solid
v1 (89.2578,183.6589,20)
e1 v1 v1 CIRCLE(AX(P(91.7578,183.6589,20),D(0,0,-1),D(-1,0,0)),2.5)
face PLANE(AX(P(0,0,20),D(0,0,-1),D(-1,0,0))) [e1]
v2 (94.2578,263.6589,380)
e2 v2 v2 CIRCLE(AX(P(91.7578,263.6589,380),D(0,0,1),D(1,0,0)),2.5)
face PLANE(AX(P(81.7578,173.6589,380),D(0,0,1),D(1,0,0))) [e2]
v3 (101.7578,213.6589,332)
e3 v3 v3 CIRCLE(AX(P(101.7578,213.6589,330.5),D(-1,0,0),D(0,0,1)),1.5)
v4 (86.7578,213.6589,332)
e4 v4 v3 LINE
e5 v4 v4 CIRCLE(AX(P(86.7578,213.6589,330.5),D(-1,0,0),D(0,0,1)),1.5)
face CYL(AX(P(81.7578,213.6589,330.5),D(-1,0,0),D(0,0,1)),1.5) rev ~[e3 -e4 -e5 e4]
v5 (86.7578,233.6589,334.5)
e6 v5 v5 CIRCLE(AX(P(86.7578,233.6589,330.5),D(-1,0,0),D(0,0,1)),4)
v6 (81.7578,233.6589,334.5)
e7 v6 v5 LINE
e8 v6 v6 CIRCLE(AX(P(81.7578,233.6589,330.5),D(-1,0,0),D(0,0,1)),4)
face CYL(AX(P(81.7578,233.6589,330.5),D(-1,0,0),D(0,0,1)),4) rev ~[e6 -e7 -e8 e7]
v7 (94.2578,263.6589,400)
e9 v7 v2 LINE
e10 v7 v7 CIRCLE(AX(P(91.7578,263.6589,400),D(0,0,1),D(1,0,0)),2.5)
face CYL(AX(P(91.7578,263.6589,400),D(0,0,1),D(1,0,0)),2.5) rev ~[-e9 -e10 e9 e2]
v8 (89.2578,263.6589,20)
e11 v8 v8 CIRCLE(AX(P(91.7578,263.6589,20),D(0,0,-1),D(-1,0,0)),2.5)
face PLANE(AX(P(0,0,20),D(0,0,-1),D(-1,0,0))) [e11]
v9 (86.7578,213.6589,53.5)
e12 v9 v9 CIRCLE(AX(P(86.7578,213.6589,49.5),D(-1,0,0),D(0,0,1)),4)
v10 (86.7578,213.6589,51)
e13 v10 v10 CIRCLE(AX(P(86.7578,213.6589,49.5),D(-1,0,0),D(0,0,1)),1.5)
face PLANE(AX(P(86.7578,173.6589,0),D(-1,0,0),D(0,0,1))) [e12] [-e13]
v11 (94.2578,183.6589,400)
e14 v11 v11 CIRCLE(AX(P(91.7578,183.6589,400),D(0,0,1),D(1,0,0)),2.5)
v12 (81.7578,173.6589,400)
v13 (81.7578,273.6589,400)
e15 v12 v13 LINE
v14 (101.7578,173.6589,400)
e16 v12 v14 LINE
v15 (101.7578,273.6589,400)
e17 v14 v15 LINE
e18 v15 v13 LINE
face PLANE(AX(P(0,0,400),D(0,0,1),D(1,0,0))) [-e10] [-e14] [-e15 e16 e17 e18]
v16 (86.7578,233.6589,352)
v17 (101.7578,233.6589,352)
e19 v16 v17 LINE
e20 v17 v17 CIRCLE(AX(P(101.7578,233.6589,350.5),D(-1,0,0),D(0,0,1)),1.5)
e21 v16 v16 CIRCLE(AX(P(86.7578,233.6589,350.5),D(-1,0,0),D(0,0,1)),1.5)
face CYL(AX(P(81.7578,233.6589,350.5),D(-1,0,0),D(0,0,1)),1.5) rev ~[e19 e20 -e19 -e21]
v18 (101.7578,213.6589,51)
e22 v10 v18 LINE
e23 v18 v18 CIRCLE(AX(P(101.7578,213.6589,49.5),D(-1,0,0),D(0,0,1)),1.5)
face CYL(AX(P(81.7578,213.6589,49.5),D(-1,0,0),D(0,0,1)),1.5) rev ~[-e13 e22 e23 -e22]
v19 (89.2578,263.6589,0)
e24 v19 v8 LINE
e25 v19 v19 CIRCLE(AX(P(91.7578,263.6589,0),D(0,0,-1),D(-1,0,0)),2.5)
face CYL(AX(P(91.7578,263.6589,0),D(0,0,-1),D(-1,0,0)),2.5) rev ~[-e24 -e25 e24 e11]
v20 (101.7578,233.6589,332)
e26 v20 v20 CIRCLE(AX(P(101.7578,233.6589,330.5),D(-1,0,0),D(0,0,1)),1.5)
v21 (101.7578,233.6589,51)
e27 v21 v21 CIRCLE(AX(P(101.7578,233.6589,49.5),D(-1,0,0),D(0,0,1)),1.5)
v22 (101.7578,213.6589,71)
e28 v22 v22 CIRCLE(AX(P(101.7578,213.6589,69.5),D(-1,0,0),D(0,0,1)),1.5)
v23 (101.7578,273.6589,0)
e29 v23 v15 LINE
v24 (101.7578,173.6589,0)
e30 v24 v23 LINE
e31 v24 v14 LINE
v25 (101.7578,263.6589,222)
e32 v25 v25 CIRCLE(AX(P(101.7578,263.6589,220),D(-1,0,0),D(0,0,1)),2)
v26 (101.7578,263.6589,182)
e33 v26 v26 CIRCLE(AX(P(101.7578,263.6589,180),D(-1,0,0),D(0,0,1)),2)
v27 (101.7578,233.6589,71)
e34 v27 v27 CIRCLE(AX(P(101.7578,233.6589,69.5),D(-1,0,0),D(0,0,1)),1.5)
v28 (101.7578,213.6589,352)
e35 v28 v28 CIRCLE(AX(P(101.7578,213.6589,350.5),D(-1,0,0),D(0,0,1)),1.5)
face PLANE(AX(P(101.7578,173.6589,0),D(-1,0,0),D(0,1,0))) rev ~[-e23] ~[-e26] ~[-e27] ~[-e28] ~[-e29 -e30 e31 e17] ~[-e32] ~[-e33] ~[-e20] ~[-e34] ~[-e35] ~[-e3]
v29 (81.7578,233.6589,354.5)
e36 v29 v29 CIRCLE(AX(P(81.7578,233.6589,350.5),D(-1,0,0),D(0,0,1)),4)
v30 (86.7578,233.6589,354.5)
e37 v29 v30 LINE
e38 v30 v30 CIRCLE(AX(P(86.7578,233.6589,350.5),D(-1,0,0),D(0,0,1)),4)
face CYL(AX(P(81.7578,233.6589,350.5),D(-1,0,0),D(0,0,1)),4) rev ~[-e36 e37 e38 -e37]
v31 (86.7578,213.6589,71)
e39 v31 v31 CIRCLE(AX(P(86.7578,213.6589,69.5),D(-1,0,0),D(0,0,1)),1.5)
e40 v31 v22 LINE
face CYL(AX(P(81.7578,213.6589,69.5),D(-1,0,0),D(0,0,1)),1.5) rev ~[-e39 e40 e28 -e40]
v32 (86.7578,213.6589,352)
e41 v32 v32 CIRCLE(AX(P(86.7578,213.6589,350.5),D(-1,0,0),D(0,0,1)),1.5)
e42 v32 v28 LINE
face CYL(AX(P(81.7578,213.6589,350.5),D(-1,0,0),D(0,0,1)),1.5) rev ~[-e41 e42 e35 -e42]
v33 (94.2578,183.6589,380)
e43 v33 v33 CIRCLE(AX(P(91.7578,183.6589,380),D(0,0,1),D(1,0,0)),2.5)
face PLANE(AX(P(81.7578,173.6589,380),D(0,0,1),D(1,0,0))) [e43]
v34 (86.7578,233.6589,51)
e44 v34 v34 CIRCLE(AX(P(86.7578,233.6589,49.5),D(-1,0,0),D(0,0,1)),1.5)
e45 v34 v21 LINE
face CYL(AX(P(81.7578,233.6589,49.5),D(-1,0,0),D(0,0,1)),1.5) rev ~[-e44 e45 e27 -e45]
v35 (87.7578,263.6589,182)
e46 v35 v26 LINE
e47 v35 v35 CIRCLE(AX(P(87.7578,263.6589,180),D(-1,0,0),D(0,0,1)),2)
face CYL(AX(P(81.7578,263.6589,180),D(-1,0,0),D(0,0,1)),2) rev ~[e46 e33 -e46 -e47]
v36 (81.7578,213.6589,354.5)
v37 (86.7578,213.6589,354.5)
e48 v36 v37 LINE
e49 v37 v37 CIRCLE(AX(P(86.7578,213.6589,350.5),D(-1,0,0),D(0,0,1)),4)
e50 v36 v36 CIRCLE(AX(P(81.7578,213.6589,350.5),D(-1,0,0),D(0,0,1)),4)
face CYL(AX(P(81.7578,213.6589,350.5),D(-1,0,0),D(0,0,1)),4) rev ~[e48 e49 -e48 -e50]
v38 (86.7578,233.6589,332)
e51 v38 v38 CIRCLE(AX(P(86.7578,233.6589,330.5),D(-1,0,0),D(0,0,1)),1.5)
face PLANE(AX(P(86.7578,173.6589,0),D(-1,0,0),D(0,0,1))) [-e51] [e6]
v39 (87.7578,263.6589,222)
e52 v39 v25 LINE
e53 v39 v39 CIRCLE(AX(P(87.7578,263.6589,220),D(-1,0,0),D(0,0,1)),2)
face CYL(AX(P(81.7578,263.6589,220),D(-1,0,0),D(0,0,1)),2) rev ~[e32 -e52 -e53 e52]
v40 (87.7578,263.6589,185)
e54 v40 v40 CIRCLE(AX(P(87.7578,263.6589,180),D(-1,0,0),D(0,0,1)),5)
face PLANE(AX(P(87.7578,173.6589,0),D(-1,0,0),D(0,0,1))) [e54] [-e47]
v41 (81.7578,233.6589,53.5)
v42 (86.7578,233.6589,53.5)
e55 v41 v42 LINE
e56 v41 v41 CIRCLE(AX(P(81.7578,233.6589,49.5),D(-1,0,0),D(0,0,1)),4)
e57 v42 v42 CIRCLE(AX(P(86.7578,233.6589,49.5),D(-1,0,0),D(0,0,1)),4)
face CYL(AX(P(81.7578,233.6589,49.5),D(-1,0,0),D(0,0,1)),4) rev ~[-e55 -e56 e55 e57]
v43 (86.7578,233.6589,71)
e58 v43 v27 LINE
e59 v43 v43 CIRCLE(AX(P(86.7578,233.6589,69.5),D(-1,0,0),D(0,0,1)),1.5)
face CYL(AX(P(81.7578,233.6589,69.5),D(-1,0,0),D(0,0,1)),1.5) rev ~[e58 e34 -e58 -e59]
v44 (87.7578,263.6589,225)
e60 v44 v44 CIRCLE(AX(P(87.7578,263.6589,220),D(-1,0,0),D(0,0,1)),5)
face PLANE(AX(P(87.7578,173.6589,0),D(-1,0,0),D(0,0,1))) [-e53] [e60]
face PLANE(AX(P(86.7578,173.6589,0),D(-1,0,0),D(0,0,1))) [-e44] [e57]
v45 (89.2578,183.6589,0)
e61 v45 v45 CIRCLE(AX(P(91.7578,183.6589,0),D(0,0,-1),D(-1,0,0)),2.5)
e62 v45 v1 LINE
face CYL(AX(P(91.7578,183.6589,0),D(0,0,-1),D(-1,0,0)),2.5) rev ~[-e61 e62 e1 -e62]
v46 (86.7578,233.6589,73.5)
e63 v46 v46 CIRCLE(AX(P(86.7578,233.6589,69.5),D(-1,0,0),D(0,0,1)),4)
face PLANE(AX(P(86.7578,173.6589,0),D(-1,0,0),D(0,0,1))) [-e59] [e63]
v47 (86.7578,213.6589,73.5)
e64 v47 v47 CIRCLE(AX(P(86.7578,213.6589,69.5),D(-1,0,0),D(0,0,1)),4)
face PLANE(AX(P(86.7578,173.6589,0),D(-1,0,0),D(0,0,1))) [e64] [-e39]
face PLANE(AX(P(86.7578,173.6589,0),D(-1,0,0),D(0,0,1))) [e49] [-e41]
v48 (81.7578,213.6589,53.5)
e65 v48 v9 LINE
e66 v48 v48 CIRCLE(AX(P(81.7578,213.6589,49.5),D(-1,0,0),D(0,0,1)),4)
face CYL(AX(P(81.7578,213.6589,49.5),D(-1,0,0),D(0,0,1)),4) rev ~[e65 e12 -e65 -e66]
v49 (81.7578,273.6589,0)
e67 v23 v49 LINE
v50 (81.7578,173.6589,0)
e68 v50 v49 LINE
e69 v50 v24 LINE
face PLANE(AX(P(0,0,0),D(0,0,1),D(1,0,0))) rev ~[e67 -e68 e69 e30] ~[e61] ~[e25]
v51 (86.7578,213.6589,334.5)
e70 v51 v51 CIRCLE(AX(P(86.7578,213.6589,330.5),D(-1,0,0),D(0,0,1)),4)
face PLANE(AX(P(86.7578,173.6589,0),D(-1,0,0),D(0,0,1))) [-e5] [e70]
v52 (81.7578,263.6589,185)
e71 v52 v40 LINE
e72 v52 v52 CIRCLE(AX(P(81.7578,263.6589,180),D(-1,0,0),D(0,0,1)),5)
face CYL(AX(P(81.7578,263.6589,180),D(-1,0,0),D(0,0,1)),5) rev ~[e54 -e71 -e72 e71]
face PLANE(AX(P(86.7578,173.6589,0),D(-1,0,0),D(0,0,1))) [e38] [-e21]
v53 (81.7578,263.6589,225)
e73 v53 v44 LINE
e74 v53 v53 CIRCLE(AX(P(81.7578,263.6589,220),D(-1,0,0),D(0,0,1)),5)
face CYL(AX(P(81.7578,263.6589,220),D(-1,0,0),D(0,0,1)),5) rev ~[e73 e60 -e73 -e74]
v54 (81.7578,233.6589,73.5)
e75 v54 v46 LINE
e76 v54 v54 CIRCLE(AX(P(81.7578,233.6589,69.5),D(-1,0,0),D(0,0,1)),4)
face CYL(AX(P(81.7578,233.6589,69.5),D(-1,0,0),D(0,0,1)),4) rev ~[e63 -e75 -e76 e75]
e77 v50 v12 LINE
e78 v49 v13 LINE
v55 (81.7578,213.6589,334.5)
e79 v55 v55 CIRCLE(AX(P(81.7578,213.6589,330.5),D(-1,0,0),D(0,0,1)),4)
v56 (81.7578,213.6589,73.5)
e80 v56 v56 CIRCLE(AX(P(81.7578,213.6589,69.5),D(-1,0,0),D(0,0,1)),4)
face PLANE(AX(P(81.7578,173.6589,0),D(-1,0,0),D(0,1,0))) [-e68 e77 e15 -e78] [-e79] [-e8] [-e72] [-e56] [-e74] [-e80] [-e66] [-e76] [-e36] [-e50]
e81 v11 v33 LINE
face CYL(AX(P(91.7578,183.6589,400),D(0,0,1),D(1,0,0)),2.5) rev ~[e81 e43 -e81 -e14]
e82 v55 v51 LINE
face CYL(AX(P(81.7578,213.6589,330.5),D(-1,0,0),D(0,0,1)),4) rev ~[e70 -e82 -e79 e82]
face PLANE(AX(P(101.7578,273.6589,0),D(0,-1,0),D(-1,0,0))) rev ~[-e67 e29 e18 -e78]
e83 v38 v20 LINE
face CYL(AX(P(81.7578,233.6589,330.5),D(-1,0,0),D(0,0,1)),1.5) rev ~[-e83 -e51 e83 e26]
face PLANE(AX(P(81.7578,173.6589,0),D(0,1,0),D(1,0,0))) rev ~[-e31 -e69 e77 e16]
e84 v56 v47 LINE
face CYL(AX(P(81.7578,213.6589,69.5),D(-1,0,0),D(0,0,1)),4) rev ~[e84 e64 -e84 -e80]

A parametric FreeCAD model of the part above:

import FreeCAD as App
import Part
import Sketcher

V = App.Vector


def add_polygon(sketch, points):
    """Adds a closed chain of lines whose ends are joined by coincident constraints."""
    first, n = sketch.GeometryCount, len(points)
    for a, b in zip(points, points[1:] + points[:1]):
        sketch.addGeometry(Part.LineSegment(App.Vector(*a, 0), App.Vector(*b, 0)), False)
    for i in range(n):
        sketch.addConstraint(Sketcher.Constraint("Coincident", first + i, 2, first + (i + 1) % n, 1))

doc = App.newDocument("Part")
body = doc.addObject("PartDesign::Body", "Body")

sketch1 = doc.addObject("Sketcher::SketchObject", "Sketch")
body.addObject(sketch1)
sketch1.AttachmentSupport = (doc.XY_Plane, [""])
sketch1.MapMode = "FlatFace"
add_polygon(sketch1, [(82, 274), (82, 174), (102, 174), (102, 274)])
sketch1.addConstraint([
    Sketcher.Constraint("Vertical", 0),
    Sketcher.Constraint("Horizontal", 1),
    Sketcher.Constraint("Vertical", 2),
    Sketcher.Constraint("Horizontal", 3),
    Sketcher.Constraint("DistanceX", 1, 1, 1, 2, 20.0),
    Sketcher.Constraint("DistanceY", 0, 2, 0, 1, 100.0),
    Sketcher.Constraint("DistanceY", -1, 1, 0, 2, 173.659),
    Sketcher.Constraint("DistanceX", -1, 1, 0, 2, 81.7578),
])
pad1 = doc.addObject("PartDesign::Pad", "Pad")
body.addObject(pad1)
pad1.Profile = sketch1
pad1.Length = 400

sketch2 = doc.addObject("Sketcher::SketchObject", "Sketch001")
body.addObject(sketch2)
sketch2.AttachmentSupport = (doc.YZ_Plane, [""])
sketch2.MapMode = "FlatFace"
sketch2.AttachmentOffset = App.Placement(V(0, 0, 81.7578), App.Rotation())
sketch2.addGeometry([
    Part.Circle(V(233.7, 49.5, 0), V(0, 0, 1), 1.5),
    Part.Circle(V(213.7, 49.5, 0), V(0, 0, 1), 1.5),
    Part.Circle(V(233.7, 69.5, 0), V(0, 0, 1), 1.5),
    Part.Circle(V(213.7, 69.5, 0), V(0, 0, 1), 1.5),
    Part.Circle(V(233.7, 330.5, 0), V(0, 0, 1), 1.5),
    Part.Circle(V(233.7, 350.5, 0), V(0, 0, 1), 1.5),
    Part.Circle(V(213.7, 330.5, 0), V(0, 0, 1), 1.5),
    Part.Circle(V(213.7, 350.5, 0), V(0, 0, 1), 1.5),
], False)
sketch2.addConstraint([
    Sketcher.Constraint("Equal", 0, 1),
    Sketcher.Constraint("Equal", 1, 2),
    Sketcher.Constraint("Equal", 2, 3),
    Sketcher.Constraint("Equal", 3, 4),
    Sketcher.Constraint("Equal", 4, 5),
    Sketcher.Constraint("Equal", 5, 6),
    Sketcher.Constraint("Equal", 6, 7),
    Sketcher.Constraint("Horizontal", 0, 3, 1, 3),
    Sketcher.Constraint("Horizontal", 2, 3, 3, 3),
    Sketcher.Constraint("Horizontal", 4, 3, 6, 3),
    Sketcher.Constraint("Horizontal", 5, 3, 7, 3),
    Sketcher.Constraint("Vertical", 0, 3, 2, 3),
    Sketcher.Constraint("Vertical", 1, 3, 3, 3),
    Sketcher.Constraint("Vertical", 2, 3, 4, 3),
    Sketcher.Constraint("Vertical", 4, 3, 5, 3),
    Sketcher.Constraint("Vertical", 3, 3, 6, 3),
    Sketcher.Constraint("Vertical", 6, 3, 7, 3),
    Sketcher.Constraint("Diameter", 0, 3.0),
    Sketcher.Constraint("DistanceX", 1, 3, 0, 3, 20.0),
    Sketcher.Constraint("DistanceY", 0, 3, 2, 3, 20.0),
    Sketcher.Constraint("DistanceY", 2, 3, 4, 3, 261.0),
    Sketcher.Constraint("DistanceY", 4, 3, 5, 3, 20.0),
    Sketcher.Constraint("DistanceY", -1, 1, 0, 3, 49.5),
    Sketcher.Constraint("DistanceX", -1, 1, 0, 3, 233.659),
])
pocket1 = doc.addObject("PartDesign::Pocket", "Pocket")
body.addObject(pocket1)
pocket1.Profile = sketch2
pocket1.Type = "ThroughAll"
pocket1.Reversed = True

sketch3 = doc.addObject("Sketcher::SketchObject", "Sketch002")
body.addObject(sketch3)
sketch3.AttachmentSupport = (doc.YZ_Plane, [""])
sketch3.MapMode = "FlatFace"
sketch3.AttachmentOffset = App.Placement(V(0, 0, 81.7578), App.Rotation())
sketch3.addGeometry([
    Part.Circle(V(233.7, 49.5, 0), V(0, 0, 1), 4),
    Part.Circle(V(233.7, 49.5, 0), V(0, 0, 1), 1.5),
    Part.Circle(V(233.7, 69.5, 0), V(0, 0, 1), 4),
    Part.Circle(V(233.7, 69.5, 0), V(0, 0, 1), 1.5),
    Part.Circle(V(213.7, 49.5, 0), V(0, 0, 1), 4),
    Part.Circle(V(213.7, 49.5, 0), V(0, 0, 1), 1.5),
    Part.Circle(V(213.7, 69.5, 0), V(0, 0, 1), 4),
    Part.Circle(V(213.7, 69.5, 0), V(0, 0, 1), 1.5),
    Part.Circle(V(233.7, 330.5, 0), V(0, 0, 1), 4),
    Part.Circle(V(233.7, 330.5, 0), V(0, 0, 1), 1.5),
    Part.Circle(V(233.7, 350.5, 0), V(0, 0, 1), 4),
    Part.Circle(V(233.7, 350.5, 0), V(0, 0, 1), 1.5),
    Part.Circle(V(213.7, 330.5, 0), V(0, 0, 1), 4),
    Part.Circle(V(213.7, 330.5, 0), V(0, 0, 1), 1.5),
    Part.Circle(V(213.7, 350.5, 0), V(0, 0, 1), 4),
    Part.Circle(V(213.7, 350.5, 0), V(0, 0, 1), 1.5),
], False)
sketch3.addConstraint([
    Sketcher.Constraint("Coincident", 1, 3, 0, 3),
    Sketcher.Constraint("Coincident", 3, 3, 2, 3),
    Sketcher.Constraint("Coincident", 5, 3, 4, 3),
    Sketcher.Constraint("Coincident", 7, 3, 6, 3),
    Sketcher.Constraint("Coincident", 9, 3, 8, 3),
    Sketcher.Constraint("Coincident", 11, 3, 10, 3),
    Sketcher.Constraint("Coincident", 13, 3, 12, 3),
    Sketcher.Constraint("Coincident", 15, 3, 14, 3),
    Sketcher.Constraint("Equal", 0, 2),
    Sketcher.Constraint("Equal", 1, 3),
    Sketcher.Constraint("Equal", 2, 4),
    Sketcher.Constraint("Equal", 3, 5),
    Sketcher.Constraint("Equal", 4, 6),
    Sketcher.Constraint("Equal", 5, 7),
    Sketcher.Constraint("Equal", 6, 8),
    Sketcher.Constraint("Equal", 7, 9),
    Sketcher.Constraint("Equal", 8, 10),
    Sketcher.Constraint("Equal", 9, 11),
    Sketcher.Constraint("Equal", 10, 12),
    Sketcher.Constraint("Equal", 11, 13),
    Sketcher.Constraint("Equal", 12, 14),
    Sketcher.Constraint("Equal", 13, 15),
    Sketcher.Constraint("Horizontal", 1, 3, 4, 3),
    Sketcher.Constraint("Horizontal", 3, 3, 6, 3),
    Sketcher.Constraint("Horizontal", 9, 3, 12, 3),
    Sketcher.Constraint("Horizontal", 11, 3, 14, 3),
    Sketcher.Constraint("Vertical", 1, 3, 2, 3),
    Sketcher.Constraint("Vertical", 5, 3, 6, 3),
    Sketcher.Constraint("Vertical", 3, 3, 8, 3),
    Sketcher.Constraint("Vertical", 9, 3, 10, 3),
    Sketcher.Constraint("Vertical", 7, 3, 12, 3),
    Sketcher.Constraint("Vertical", 13, 3, 14, 3),
    Sketcher.Constraint("Diameter", 0, 8.0),
    Sketcher.Constraint("Diameter", 1, 3.0),
    Sketcher.Constraint("DistanceY", 0, 3, 2, 3, 20.0),
    Sketcher.Constraint("DistanceX", 4, 3, 0, 3, 20.0),
    Sketcher.Constraint("DistanceY", 2, 3, 8, 3, 261.0),
    Sketcher.Constraint("DistanceY", 8, 3, 10, 3, 20.0),
    Sketcher.Constraint("DistanceY", -1, 1, 0, 3, 49.5),
    Sketcher.Constraint("DistanceX", -1, 1, 0, 3, 233.659),
])
pocket2 = doc.addObject("PartDesign::Pocket", "Pocket001")
body.addObject(pocket2)
pocket2.Profile = sketch3
pocket2.Length = 5
pocket2.Reversed = True

sketch4 = doc.addObject("Sketcher::SketchObject", "Sketch003")
body.addObject(sketch4)
sketch4.AttachmentSupport = (doc.YZ_Plane, [""])
sketch4.MapMode = "FlatFace"
sketch4.AttachmentOffset = App.Placement(V(0, 0, 81.7578), App.Rotation())
sketch4.addGeometry([
    Part.Circle(V(263.7, 180, 0), V(0, 0, 1), 2),
    Part.Circle(V(263.7, 220, 0), V(0, 0, 1), 2),
], False)
sketch4.addConstraint([
    Sketcher.Constraint("Equal", 0, 1),
    Sketcher.Constraint("Vertical", 0, 3, 1, 3),
    Sketcher.Constraint("Diameter", 0, 4.0),
    Sketcher.Constraint("DistanceY", -1, 1, 0, 3, 180.0),
    Sketcher.Constraint("DistanceY", -1, 1, 1, 3, 220.0),
    Sketcher.Constraint("DistanceX", -1, 1, 0, 3, 263.659),
])
pocket3 = doc.addObject("PartDesign::Pocket", "Pocket002")
body.addObject(pocket3)
pocket3.Profile = sketch4
pocket3.Type = "ThroughAll"
pocket3.Reversed = True

sketch5 = doc.addObject("Sketcher::SketchObject", "Sketch004")
body.addObject(sketch5)
sketch5.AttachmentSupport = (doc.YZ_Plane, [""])
sketch5.MapMode = "FlatFace"
sketch5.AttachmentOffset = App.Placement(V(0, 0, 81.7578), App.Rotation())
sketch5.addGeometry([
    Part.Circle(V(264, 180, 0), V(0, 0, 1), 5),
    Part.Circle(V(264, 220, 0), V(0, 0, 1), 5),
], False)
sketch5.addConstraint([
    Sketcher.Constraint("Equal", 0, 1),
    Sketcher.Constraint("Vertical", 0, 3, 1, 3),
    Sketcher.Constraint("Diameter", 0, 10.0),
    Sketcher.Constraint("DistanceY", -1, 1, 0, 3, 180.0),
    Sketcher.Constraint("DistanceY", -1, 1, 1, 3, 220.0),
    Sketcher.Constraint("DistanceX", -1, 1, 0, 3, 263.659),
])
pocket4 = doc.addObject("PartDesign::Pocket", "Pocket003")
body.addObject(pocket4)
pocket4.Profile = sketch5
pocket4.Length = 6
pocket4.Reversed = True

sketch6 = doc.addObject("Sketcher::SketchObject", "Sketch005")
body.addObject(sketch6)
sketch6.AttachmentSupport = (doc.XY_Plane, [""])
sketch6.MapMode = "FlatFace"
sketch6.addGeometry([
    Part.Circle(V(91.8, 263.7, 0), V(0, 0, 1), 2.5),
    Part.Circle(V(91.8, 183.7, 0), V(0, 0, 1), 2.5),
], False)
sketch6.addConstraint([
    Sketcher.Constraint("Equal", 0, 1),
    Sketcher.Constraint("Vertical", 0, 3, 1, 3),
    Sketcher.Constraint("Diameter", 0, 5.0),
    Sketcher.Constraint("DistanceY", 1, 3, 0, 3, 80.0),
    Sketcher.Constraint("DistanceY", -1, 1, 0, 3, 263.659),
    Sketcher.Constraint("DistanceX", -1, 1, 0, 3, 91.7578),
])
pocket5 = doc.addObject("PartDesign::Pocket", "Pocket004")
body.addObject(pocket5)
pocket5.Profile = sketch6
pocket5.Length = 20
pocket5.Reversed = True

sketch7 = doc.addObject("Sketcher::SketchObject", "Sketch006")
body.addObject(sketch7)
sketch7.AttachmentSupport = (doc.XY_Plane, [""])
sketch7.MapMode = "FlatFace"
sketch7.AttachmentOffset = App.Placement(V(0, 0, 400), App.Rotation())
sketch7.addGeometry([
    Part.Circle(V(91.8, 263.7, 0), V(0, 0, 1), 2.5),
    Part.Circle(V(91.8, 183.7, 0), V(0, 0, 1), 2.5),
], False)
sketch7.addConstraint([
    Sketcher.Constraint("Equal", 0, 1),
    Sketcher.Constraint("Vertical", 0, 3, 1, 3),
    Sketcher.Constraint("Diameter", 0, 5.0),
    Sketcher.Constraint("DistanceY", 1, 3, 0, 3, 80.0),
    Sketcher.Constraint("DistanceY", -1, 1, 0, 3, 263.659),
    Sketcher.Constraint("DistanceX", -1, 1, 0, 3, 91.7578),
])
pocket6 = doc.addObject("PartDesign::Pocket", "Pocket005")
body.addObject(pocket6)
pocket6.Profile = sketch7
pocket6.Length = 20

doc.recompute()
